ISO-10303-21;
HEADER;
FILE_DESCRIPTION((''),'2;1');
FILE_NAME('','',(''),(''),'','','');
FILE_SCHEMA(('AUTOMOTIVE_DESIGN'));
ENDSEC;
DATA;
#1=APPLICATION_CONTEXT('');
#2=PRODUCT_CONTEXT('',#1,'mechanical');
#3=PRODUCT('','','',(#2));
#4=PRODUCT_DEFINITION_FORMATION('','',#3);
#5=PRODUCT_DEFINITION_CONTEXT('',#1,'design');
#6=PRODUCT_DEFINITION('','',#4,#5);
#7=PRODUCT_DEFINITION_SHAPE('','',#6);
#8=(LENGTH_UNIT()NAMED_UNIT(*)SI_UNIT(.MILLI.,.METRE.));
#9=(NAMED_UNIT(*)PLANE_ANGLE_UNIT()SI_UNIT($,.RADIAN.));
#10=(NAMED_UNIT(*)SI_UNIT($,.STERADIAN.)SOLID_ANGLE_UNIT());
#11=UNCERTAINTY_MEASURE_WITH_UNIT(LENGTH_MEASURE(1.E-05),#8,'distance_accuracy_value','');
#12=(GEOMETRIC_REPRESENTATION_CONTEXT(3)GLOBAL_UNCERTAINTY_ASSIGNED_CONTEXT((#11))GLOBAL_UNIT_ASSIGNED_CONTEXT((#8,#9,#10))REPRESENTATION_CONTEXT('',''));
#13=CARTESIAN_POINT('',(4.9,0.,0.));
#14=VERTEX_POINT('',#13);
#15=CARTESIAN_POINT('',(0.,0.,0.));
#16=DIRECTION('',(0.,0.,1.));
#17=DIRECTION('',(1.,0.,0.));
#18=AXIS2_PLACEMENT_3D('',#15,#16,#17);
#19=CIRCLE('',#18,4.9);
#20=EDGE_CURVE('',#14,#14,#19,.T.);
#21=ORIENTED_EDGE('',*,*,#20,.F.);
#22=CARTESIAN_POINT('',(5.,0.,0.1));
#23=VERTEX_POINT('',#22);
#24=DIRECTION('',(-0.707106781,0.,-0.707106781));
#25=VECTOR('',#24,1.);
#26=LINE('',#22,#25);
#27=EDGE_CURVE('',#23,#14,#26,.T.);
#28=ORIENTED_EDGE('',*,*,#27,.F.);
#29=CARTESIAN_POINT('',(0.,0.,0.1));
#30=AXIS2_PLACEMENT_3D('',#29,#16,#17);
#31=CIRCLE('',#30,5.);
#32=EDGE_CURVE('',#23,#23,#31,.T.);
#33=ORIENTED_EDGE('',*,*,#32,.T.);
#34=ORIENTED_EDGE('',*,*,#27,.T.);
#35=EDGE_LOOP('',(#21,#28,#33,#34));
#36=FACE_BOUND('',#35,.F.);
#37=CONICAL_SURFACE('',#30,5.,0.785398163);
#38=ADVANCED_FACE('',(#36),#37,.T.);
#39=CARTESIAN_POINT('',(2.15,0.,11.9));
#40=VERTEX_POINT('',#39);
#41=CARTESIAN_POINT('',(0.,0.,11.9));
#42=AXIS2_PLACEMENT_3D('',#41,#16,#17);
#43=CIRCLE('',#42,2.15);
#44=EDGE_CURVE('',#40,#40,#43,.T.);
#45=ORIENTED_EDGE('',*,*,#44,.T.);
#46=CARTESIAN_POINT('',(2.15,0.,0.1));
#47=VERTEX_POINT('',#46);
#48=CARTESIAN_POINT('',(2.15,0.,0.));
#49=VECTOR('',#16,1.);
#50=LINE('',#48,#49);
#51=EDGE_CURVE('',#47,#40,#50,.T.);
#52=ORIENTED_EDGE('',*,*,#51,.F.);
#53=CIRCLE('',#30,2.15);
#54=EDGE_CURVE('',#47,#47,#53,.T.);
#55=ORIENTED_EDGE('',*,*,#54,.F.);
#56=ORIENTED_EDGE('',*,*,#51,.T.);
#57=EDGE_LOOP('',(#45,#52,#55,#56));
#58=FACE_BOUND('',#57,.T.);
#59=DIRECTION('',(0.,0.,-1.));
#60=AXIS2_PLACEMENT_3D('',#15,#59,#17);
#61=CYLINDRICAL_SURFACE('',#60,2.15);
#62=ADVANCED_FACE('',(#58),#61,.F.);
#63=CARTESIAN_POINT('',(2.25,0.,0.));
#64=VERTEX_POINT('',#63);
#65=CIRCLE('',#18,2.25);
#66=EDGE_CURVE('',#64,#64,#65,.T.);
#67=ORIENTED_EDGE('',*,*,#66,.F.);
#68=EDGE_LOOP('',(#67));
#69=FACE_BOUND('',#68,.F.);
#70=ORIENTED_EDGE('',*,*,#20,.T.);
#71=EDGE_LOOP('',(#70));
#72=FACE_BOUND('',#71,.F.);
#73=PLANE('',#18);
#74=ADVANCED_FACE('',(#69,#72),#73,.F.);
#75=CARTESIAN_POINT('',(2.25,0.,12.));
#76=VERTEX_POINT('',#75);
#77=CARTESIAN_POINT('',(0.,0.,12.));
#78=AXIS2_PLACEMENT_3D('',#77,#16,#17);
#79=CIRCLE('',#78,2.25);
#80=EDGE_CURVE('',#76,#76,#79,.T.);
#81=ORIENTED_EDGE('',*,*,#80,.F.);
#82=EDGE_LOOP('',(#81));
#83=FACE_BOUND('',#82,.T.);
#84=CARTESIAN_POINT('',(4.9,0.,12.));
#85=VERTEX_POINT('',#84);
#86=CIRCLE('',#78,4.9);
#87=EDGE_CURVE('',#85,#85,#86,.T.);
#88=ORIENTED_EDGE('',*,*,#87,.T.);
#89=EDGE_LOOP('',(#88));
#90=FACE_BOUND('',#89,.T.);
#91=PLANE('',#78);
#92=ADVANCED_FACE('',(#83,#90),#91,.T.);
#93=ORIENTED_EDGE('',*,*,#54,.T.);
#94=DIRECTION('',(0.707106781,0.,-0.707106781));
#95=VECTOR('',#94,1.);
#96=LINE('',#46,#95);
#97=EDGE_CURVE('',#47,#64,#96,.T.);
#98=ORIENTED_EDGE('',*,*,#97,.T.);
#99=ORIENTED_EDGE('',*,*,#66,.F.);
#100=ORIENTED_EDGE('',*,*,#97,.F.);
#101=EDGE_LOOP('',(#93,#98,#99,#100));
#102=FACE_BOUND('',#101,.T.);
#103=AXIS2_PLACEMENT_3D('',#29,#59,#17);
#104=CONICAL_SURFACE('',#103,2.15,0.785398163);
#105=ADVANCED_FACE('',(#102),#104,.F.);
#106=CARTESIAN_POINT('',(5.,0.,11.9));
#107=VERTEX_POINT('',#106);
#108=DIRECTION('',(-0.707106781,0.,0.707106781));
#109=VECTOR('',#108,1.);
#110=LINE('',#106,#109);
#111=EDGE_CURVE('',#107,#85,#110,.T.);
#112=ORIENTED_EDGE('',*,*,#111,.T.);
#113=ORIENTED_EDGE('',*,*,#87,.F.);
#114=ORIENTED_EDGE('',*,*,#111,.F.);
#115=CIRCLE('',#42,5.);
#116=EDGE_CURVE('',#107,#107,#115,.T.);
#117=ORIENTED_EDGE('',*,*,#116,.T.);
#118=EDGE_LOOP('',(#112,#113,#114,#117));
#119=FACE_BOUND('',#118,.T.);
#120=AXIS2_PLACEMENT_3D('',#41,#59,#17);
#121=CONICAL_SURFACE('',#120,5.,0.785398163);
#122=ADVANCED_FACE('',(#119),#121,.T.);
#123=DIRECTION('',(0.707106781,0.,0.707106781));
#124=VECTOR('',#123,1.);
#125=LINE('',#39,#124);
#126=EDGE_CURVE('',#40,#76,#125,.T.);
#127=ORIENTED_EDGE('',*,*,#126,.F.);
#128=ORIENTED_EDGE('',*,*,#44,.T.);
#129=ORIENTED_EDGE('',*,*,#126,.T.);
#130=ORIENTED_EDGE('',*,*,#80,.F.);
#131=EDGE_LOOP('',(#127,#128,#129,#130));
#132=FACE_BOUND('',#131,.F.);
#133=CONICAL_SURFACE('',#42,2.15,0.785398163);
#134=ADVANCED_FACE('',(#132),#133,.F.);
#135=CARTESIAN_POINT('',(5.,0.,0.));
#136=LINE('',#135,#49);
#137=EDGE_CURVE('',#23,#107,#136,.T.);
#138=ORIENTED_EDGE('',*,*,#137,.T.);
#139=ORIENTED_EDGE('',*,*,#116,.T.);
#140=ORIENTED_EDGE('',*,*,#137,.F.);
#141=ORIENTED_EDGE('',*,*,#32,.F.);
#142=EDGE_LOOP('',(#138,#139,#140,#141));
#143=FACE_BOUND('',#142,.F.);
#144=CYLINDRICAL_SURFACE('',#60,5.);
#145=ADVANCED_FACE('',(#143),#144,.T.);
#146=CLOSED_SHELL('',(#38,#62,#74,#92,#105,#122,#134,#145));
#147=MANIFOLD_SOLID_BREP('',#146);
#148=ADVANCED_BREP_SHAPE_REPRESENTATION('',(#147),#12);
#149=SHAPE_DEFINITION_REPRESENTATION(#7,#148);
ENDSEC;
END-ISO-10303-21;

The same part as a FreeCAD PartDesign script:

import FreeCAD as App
import Part
import Sketcher
from FreeCAD import Vector
Q = App.Units.Quantity


def edges_at(feature, points):
    """Names of the edges that pass closest to the given points."""
    edges = feature.Shape.Edges
    near = lambda p: min(range(len(edges)), key=lambda i: edges[i].distToShape(Part.Vertex(*p))[0])
    return sorted({f"Edge{near(p) + 1}" for p in points})

doc = App.newDocument("Part")
body = doc.addObject("PartDesign::Body", "Body")

# Sketch on XY plane
sketch1 = body.newObject("Sketcher::SketchObject", "Sketch")
sketch1.AttachmentSupport = (doc.getObject("XY_Plane"), [""])
sketch1.MapMode = "FlatFace"
sketch1.addGeometry([
    Part.Circle(Vector(0, 0, 0), Vector(0, 0, 1), 5),
    Part.Circle(Vector(0, 0, 0), Vector(0, 0, 1), 2.1),
], False)
sketch1.addConstraint([
    Sketcher.Constraint("Coincident", 0, 3, -1, 1),
    Sketcher.Constraint("Coincident", 1, 3, -1, 1),
    Sketcher.Constraint("Diameter", 0, Q("10 mm")),
    Sketcher.Constraint("Diameter", 1, Q("4.3 mm")),
])
pad1 = body.newObject("PartDesign::Pad", "Pad")
pad1.Profile = sketch1
pad1.Length = 12
doc.recompute()

chamfer = body.newObject("PartDesign::Chamfer", "Chamfer")
chamfer.Base = (pad1, edges_at(pad1, [
    (-5, 0, 0),
    (-5, 0, 12),
    (-2.15, 0, 0),
    (-2.15, 0, 12),
]))
chamfer.Size = 0.1

doc.recompute()
